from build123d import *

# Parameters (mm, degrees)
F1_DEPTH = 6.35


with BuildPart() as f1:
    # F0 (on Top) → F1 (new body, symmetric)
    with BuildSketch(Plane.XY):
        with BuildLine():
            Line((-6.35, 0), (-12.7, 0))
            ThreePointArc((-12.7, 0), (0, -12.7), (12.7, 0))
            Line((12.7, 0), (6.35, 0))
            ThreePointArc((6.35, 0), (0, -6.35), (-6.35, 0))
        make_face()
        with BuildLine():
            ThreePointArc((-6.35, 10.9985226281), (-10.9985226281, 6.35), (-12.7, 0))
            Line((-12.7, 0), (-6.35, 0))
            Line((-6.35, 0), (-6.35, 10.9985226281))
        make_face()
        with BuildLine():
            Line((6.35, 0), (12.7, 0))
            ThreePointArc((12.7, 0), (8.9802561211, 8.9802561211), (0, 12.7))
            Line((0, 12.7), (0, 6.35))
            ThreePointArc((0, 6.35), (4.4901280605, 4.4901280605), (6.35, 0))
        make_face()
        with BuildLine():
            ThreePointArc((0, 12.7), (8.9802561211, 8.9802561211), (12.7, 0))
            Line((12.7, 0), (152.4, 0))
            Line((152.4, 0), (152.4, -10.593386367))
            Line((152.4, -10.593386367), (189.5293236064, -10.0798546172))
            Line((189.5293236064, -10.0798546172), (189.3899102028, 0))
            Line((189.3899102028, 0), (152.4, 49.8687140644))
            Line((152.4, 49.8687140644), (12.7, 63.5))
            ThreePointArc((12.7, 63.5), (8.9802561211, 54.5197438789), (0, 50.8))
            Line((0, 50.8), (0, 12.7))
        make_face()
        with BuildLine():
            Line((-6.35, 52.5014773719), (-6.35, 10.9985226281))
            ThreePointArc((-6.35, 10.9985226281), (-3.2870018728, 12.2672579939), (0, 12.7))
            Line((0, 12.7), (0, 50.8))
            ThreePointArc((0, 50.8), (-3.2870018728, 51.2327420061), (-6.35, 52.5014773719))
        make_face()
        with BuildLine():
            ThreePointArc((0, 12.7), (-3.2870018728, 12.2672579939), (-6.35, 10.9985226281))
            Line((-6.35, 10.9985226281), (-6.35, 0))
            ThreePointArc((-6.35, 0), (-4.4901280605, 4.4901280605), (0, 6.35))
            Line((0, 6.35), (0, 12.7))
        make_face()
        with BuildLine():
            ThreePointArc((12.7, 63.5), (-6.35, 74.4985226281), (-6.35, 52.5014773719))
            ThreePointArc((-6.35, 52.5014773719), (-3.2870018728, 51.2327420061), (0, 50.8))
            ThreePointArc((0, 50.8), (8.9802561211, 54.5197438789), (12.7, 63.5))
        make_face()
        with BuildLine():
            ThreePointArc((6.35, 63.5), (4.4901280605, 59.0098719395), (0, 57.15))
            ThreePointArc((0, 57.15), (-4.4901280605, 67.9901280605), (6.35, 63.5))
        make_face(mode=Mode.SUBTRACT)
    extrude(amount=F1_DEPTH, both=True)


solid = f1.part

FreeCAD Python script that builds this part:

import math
import FreeCAD as App
import Part
import Sketcher
Q = App.Units.Quantity

doc = App.newDocument("Part")
body = doc.addObject("PartDesign::Body", "Body")

# Sketch on XY plane
sketch1 = body.newObject("Sketcher::SketchObject", "Sketch")
sketch1.AttachmentSupport = (doc.getObject("XY_Plane"), [""])
sketch1.MapMode = "FlatFace"
sketch1.addGeometry([
    Part.LineSegment(App.Vector(-6, 53, 0), App.Vector(-6, 11, 0)),  # 0
    Part.ArcOfCircle(Part.Circle(App.Vector(0, 0, 0), App.Vector(0, 0, 1), 13), math.radians(120), math.radians(180)),  # 1
    Part.ArcOfCircle(Part.Circle(App.Vector(0, 0, 0), App.Vector(0, 0, 1), 13), math.radians(180), math.radians(360)),  # 2
    Part.LineSegment(App.Vector(13, 0, 0), App.Vector(152, 0, 0)),  # 3
    Part.LineSegment(App.Vector(152, 0, 0), App.Vector(152, -11, 0)),  # 4
    Part.LineSegment(App.Vector(152, -11, 0), App.Vector(190, -10, 0)),  # 5
    Part.LineSegment(App.Vector(190, -10, 0), App.Vector(189, 0, 0)),  # 6
    Part.LineSegment(App.Vector(189, 0, 0), App.Vector(152, 50, 0)),  # 7
    Part.LineSegment(App.Vector(152, 50, 0), App.Vector(13, 64, 0)),  # 8
    Part.ArcOfCircle(Part.Circle(App.Vector(0, 64, 0), App.Vector(0, 0, 1), 13), math.radians(0), math.radians(240)),  # 9
    Part.ArcOfCircle(Part.Circle(App.Vector(0, 0, 0), App.Vector(0, 0, 1), 6), math.radians(180), math.radians(360)),  # 10
    Part.ArcOfCircle(Part.Circle(App.Vector(0, 0, 0), App.Vector(0, 0, 1), 6), math.radians(90), math.radians(180)),  # 11
    Part.ArcOfCircle(Part.Circle(App.Vector(0, 0, 0), App.Vector(0, 0, 1), 6), math.radians(0), math.radians(90)),  # 12
    Part.ArcOfCircle(Part.Circle(App.Vector(0, 64, 0), App.Vector(0, 0, 1), 6), math.radians(0), math.radians(270)),  # 13
    Part.ArcOfCircle(Part.Circle(App.Vector(0, 64, 0), App.Vector(0, 0, 1), 6), math.radians(-90), math.radians(0)),  # 14
], False)
sketch1.addConstraint([
    Sketcher.Constraint("Coincident", 0, 2, 1, 1),
    Sketcher.Constraint("Tangent", 1, 2, 2, 1),
    Sketcher.Constraint("Coincident", 2, 2, 3, 1),
    Sketcher.Constraint("Coincident", 3, 2, 4, 1),
    Sketcher.Constraint("Coincident", 4, 2, 5, 1),
    Sketcher.Constraint("Coincident", 5, 2, 6, 1),
    Sketcher.Constraint("Coincident", 6, 2, 7, 1),
    Sketcher.Constraint("Coincident", 7, 2, 8, 1),
    Sketcher.Constraint("Coincident", 8, 2, 9, 1),
    Sketcher.Constraint("Coincident", 9, 2, 0, 1),
    Sketcher.Constraint("Tangent", 10, 1, 11, 2),
    Sketcher.Constraint("Tangent", 11, 1, 12, 2),
    Sketcher.Constraint("Tangent", 12, 1, 10, 2),
    Sketcher.Constraint("Tangent", 13, 1, 14, 2),
    Sketcher.Constraint("Coincident", 14, 1, 13, 2),
    Sketcher.Constraint("Vertical", 0),
    Sketcher.Constraint("Horizontal", 3),
    Sketcher.Constraint("Vertical", 4),
    Sketcher.Constraint("Coincident", 1, 3, -1, 1),
    Sketcher.Constraint("Coincident", 10, 3, -1, 1),
    Sketcher.Constraint("Coincident", 13, 3, 9, 3),
    Sketcher.Constraint("Equal", 1, 2),
    Sketcher.Constraint("Equal", 2, 9),
    Sketcher.Constraint("Equal", 12, 13),
    Sketcher.Constraint("PointOnObject", 9, 3, -2),
    Sketcher.Constraint("PointOnObject", 1, 2, -1),
    Sketcher.Constraint("PointOnObject", 2, 2, -1),
    Sketcher.Constraint("PointOnObject", 6, 2, -1),
    Sketcher.Constraint("PointOnObject", 10, 1, -1),
    Sketcher.Constraint("PointOnObject", 11, 1, -2),
    Sketcher.Constraint("PointOnObject", 12, 1, -1),
    Sketcher.Constraint("PointOnObject", 14, 1, -2),
    Sketcher.Constraint("Perpendicular", 5, 6),
    Sketcher.Constraint("Horizontal", 14, 3, 8, 2),
    Sketcher.Constraint("Horizontal", 8, 2, 13, 1),
    Sketcher.Constraint("Vertical", 4, 2, 7, 2),
    Sketcher.Constraint("Vertical", 9, 2, 10, 1),
    Sketcher.Constraint("Radius", 1, Q("0.5 in")),
    Sketcher.Constraint("Radius", 10, Q("0.25 in")),
    Sketcher.Constraint("DistanceX", 3, 1, 3, 2, Q("5.5 in")),
    Sketcher.Constraint("DistanceY", -1, 1, 9, 3, Q("2.5 in")),
    Sketcher.Constraint("DistanceY", 4, 2, 7, 2, Q("60.4621 mm")),
    Sketcher.Constraint("Distance", 6, Q("10.080819 mm")),
    Sketcher.Constraint("Distance", 7, Q("62.089791 mm")),
    Sketcher.Constraint("DistanceY", 4, 2, 4, 1, Q("10.593386 mm")),
])
pad1 = body.newObject("PartDesign::Pad", "Pad")
pad1.Profile = sketch1
pad1.Length = Q("0.5 in")
pad1.Midplane = True

doc.recompute()
